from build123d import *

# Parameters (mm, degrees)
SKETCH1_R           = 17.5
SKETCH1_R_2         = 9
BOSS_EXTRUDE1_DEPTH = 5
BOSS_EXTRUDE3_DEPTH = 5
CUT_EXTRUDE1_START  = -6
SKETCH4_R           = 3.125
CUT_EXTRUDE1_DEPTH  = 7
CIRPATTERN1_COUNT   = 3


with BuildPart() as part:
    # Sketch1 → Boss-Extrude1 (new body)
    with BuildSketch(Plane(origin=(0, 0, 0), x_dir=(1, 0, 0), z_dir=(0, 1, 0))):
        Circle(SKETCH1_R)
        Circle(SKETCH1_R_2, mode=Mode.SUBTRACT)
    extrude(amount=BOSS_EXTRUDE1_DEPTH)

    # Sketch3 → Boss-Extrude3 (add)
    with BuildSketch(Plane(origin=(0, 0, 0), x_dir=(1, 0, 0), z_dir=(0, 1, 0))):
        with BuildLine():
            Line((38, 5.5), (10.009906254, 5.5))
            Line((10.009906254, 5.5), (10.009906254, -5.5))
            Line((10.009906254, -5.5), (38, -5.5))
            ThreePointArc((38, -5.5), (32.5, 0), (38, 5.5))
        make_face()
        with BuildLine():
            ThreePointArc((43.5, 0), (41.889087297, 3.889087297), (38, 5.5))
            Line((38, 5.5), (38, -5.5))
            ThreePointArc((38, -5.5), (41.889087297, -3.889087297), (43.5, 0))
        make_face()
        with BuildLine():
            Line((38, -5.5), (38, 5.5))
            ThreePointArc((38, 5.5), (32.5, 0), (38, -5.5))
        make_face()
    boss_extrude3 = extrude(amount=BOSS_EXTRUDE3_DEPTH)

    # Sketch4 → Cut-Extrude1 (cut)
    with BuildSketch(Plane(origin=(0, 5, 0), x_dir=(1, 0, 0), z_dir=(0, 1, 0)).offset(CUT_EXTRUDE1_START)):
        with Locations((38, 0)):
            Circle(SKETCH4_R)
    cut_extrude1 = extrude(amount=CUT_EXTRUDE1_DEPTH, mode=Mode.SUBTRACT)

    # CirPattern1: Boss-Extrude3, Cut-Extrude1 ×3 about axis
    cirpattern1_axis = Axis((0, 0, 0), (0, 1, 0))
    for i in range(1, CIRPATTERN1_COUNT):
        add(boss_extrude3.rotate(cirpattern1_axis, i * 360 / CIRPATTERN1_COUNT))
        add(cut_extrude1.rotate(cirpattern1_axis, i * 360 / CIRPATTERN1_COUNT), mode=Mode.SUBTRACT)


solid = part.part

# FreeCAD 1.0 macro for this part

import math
import FreeCAD as App
import Part
import Sketcher

V = App.Vector

doc = App.newDocument("Part")
body = doc.addObject("PartDesign::Body", "Body")

# Sketch on XZ plane
sketch1 = doc.addObject("Sketcher::SketchObject", "Sketch")
body.addObject(sketch1)
sketch1.AttachmentSupport = (doc.XZ_Plane, [""])
sketch1.MapMode = "FlatFace"
sketch1.addGeometry([
    Part.Circle(V(0, 0, 0), V(0, 0, 1), 18),
    Part.Circle(V(0, 0, 0), V(0, 0, 1), 9),
], False)
sketch1.addConstraint([
    Sketcher.Constraint("Coincident", 0, 3, -1, 1),
    Sketcher.Constraint("Coincident", 1, 3, -1, 1),
    Sketcher.Constraint("Diameter", 0, 35.0),
    Sketcher.Constraint("Diameter", 1, 18.0),
])
pad1 = doc.addObject("PartDesign::Pad", "Pad")
body.addObject(pad1)
pad1.Profile = sketch1
pad1.Length = 5
pad1.Reversed = True

# Sketch on XZ plane
sketch2 = doc.addObject("Sketcher::SketchObject", "Sketch001")
body.addObject(sketch2)
sketch2.AttachmentSupport = (doc.XZ_Plane, [""])
sketch2.MapMode = "FlatFace"
sketch2.addGeometry([
    Part.LineSegment(V(10, -6, 0), V(10, 6, 0)),  # 0
    Part.LineSegment(V(10, 6, 0), V(38, 6, 0)),  # 1
    Part.ArcOfCircle(Part.Circle(V(38, 0, 0), V(0, 0, 1), 5), math.radians(0), math.radians(90)),  # 2
    Part.ArcOfCircle(Part.Circle(V(38, 0, 0), V(0, 0, 1), 5), math.radians(-90), math.radians(0)),  # 3
    Part.LineSegment(V(38, -6, 0), V(10, -6, 0)),  # 4
], False)
sketch2.addConstraint([
    Sketcher.Constraint("Coincident", 0, 2, 1, 1),
    Sketcher.Constraint("Tangent", 1, 2, 2, 2),
    Sketcher.Constraint("Tangent", 2, 1, 3, 2),
    Sketcher.Constraint("Tangent", 3, 1, 4, 1),
    Sketcher.Constraint("Coincident", 4, 2, 0, 1),
    Sketcher.Constraint("Vertical", 0),
    Sketcher.Constraint("Horizontal", 1),
    Sketcher.Constraint("Horizontal", 4),
    Sketcher.Constraint("Equal", 2, 3),
    Sketcher.Constraint("PointOnObject", 2, 3, -1),
    Sketcher.Constraint("PointOnObject", 2, 1, -1),
    Sketcher.Constraint("Radius", 2, 5.5),
    Sketcher.Constraint("DistanceX", -1, 1, 2, 3, 38.0),
    Sketcher.Constraint("DistanceX", 1, 1, 1, 2, 27.990094),
])
pad2 = doc.addObject("PartDesign::Pad", "Pad001")
body.addObject(pad2)
pad2.Profile = sketch2
pad2.Length = 5
pad2.Reversed = True

# Sketch on XZ plane
sketch3 = doc.addObject("Sketcher::SketchObject", "Sketch002")
body.addObject(sketch3)
sketch3.AttachmentSupport = (doc.XZ_Plane, [""])
sketch3.MapMode = "FlatFace"
sketch3.AttachmentOffset = App.Placement(V(0, 0, 1), App.Rotation())
sketch3.addGeometry(Part.Circle(V(38, 0, 0), V(0, 0, 1), 3.1), False)
sketch3.addConstraint([
    Sketcher.Constraint("PointOnObject", 0, 3, -1),
    Sketcher.Constraint("Diameter", 0, 6.25),
    Sketcher.Constraint("DistanceX", -1, 1, 0, 3, 38.0),
])
pocket1 = doc.addObject("PartDesign::Pocket", "Pocket")
body.addObject(pocket1)
pocket1.Profile = sketch3
pocket1.Length = 7
doc.recompute()

polarpattern = doc.addObject("PartDesign::PolarPattern", "PolarPattern")
body.addObject(polarpattern)
polarpattern.Originals = [pad2, pocket1]
polarpattern.Axis = (doc.Y_Axis, [""])
polarpattern.Angle = 360
polarpattern.Occurrences = 3
body.Tip = polarpattern

doc.recompute()
